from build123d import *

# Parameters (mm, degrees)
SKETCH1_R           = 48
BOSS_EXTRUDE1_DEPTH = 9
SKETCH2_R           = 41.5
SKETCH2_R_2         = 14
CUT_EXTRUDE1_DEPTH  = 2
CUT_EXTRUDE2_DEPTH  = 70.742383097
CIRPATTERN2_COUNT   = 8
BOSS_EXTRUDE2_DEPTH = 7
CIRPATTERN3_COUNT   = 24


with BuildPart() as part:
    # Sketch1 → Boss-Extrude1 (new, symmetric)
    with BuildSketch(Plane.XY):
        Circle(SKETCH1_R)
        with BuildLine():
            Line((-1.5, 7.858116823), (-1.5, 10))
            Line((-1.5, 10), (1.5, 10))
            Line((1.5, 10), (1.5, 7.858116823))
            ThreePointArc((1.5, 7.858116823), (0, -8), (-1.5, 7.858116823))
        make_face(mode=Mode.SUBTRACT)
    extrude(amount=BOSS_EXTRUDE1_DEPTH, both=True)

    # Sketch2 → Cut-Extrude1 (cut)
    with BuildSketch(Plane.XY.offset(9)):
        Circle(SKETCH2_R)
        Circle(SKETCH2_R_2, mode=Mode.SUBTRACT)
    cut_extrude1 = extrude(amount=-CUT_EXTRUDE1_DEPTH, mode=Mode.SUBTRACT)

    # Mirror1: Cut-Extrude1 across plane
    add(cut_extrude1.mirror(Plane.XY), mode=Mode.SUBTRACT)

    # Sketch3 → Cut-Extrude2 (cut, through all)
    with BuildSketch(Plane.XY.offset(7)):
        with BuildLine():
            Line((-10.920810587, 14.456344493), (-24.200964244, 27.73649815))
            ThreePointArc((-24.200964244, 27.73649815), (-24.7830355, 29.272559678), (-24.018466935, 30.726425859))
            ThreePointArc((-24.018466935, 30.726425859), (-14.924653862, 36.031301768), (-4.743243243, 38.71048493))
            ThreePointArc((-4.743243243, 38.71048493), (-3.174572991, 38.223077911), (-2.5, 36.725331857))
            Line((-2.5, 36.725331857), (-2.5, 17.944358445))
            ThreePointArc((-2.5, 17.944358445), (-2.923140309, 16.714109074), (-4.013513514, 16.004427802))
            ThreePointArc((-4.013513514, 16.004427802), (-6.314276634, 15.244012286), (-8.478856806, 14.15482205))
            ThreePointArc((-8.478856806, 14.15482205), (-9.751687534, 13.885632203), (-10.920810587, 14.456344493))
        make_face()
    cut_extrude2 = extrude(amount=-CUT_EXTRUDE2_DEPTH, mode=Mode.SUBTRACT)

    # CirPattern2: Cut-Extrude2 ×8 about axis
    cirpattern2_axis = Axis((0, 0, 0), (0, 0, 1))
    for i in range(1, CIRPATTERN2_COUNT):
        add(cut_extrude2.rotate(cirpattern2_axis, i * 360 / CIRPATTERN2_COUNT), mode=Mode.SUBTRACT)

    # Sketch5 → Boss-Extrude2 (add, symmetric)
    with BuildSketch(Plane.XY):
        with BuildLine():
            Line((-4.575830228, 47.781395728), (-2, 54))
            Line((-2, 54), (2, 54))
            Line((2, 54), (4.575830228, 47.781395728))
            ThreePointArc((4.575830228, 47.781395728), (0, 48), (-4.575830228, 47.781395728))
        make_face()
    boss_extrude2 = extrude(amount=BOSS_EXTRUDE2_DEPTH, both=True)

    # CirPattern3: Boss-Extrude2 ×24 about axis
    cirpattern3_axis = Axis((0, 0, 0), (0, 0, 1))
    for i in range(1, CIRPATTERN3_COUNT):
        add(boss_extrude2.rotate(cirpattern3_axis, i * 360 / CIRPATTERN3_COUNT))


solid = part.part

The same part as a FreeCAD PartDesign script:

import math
import FreeCAD as App
import Part
import Sketcher
from FreeCAD import Vector
Q = App.Units.Quantity

doc = App.newDocument("Part")
body = doc.addObject("PartDesign::Body", "Body")

sketch1 = doc.addObject("Sketcher::SketchObject", "Sketch")
body.addObject(sketch1)
sketch1.AttachmentSupport = (doc.XY_Plane, [""])
sketch1.MapMode = "FlatFace"
sketch1.addGeometry([
    Part.Circle(Vector(0, 0, 0), Vector(0, 0, 1), 48),
    Part.ArcOfCircle(Part.Circle(Vector(0, 0, 0), Vector(0, 0, 1), 8), math.radians(100.806923), math.radians(439.193077)),
    Part.LineSegment(Vector(-1.5, 7.858117, 0), Vector(-1.5, 10, 0)),
    Part.LineSegment(Vector(-1.5, 10, 0), Vector(1.5, 10, 0)),
    Part.LineSegment(Vector(1.5, 10, 0), Vector(1.5, 7.858117, 0)),
], False)
sketch1.addConstraint([
    Sketcher.Constraint("Coincident", 1, 1, 2, 1),
    Sketcher.Constraint("Coincident", 2, 2, 3, 1),
    Sketcher.Constraint("Coincident", 3, 2, 4, 1),
    Sketcher.Constraint("Coincident", 4, 2, 1, 2),
    Sketcher.Constraint("Vertical", 2),
    Sketcher.Constraint("Horizontal", 3),
    Sketcher.Constraint("Vertical", 4),
    Sketcher.Constraint("Coincident", 0, 3, -1, 1),
    Sketcher.Constraint("Coincident", 1, 3, -1, 1),
    Sketcher.Constraint("Horizontal", 1, 1, 4, 2),
    Sketcher.Constraint("Diameter", 0, 96.0),
    Sketcher.Constraint("Radius", 1, 8.0),
    Sketcher.Constraint("DistanceX", 3, 1, 3, 2, 3.0),
    Sketcher.Constraint("DistanceY", -1, 1, 2, 2, 10.0),
])
pad1 = doc.addObject("PartDesign::Pad", "Pad")
body.addObject(pad1)
pad1.Profile = sketch1
pad1.Length = 18
pad1.Midplane = True

sketch2 = doc.addObject("Sketcher::SketchObject", "Sketch001")
body.addObject(sketch2)
sketch2.AttachmentSupport = (doc.XY_Plane, [""])
sketch2.MapMode = "FlatFace"
sketch2.AttachmentOffset = App.Placement(Vector(0, 0, 9), App.Rotation())
sketch2.addGeometry([
    Part.Circle(Vector(0, 0, 0), Vector(0, 0, 1), 41.5),
    Part.Circle(Vector(0, 0, 0), Vector(0, 0, 1), 14),
], False)
sketch2.addConstraint([
    Sketcher.Constraint("Coincident", 0, 3, -1, 1),
    Sketcher.Constraint("Coincident", 1, 3, -1, 1),
    Sketcher.Constraint("Diameter", 0, 83.0),
    Sketcher.Constraint("Diameter", 1, 28.0),
])
pocket1 = doc.addObject("PartDesign::Pocket", "Pocket")
body.addObject(pocket1)
pocket1.Profile = sketch2
pocket1.Length = 2
doc.recompute()

mirrored = doc.addObject("PartDesign::Mirrored", "Mirrored")
body.addObject(mirrored)
mirrored.Originals = [pocket1]
mirrored.MirrorPlane = (doc.XY_Plane, [""])
body.Tip = mirrored

sketch3 = doc.addObject("Sketcher::SketchObject", "Sketch002")
body.addObject(sketch3)
sketch3.AttachmentSupport = (doc.XY_Plane, [""])
sketch3.MapMode = "FlatFace"
sketch3.AttachmentOffset = App.Placement(Vector(0, 0, 7), App.Rotation())
sketch3.addGeometry([
    Part.LineSegment(Vector(-24.200964, 27.736498, 0), Vector(-10.920811, 14.456344, 0)),
    Part.ArcOfCircle(Part.Circle(Vector(-9.506597, 15.870558, 0), Vector(0, 0, 1), 2), math.radians(-135), math.radians(-59.078039)),
    Part.ArcOfCircle(Part.Circle(Vector(0, 0, 0), Vector(0, 0, 1), 16.5), math.radians(104.078039), math.radians(120.921961)),
    Part.ArcOfCircle(Part.Circle(Vector(-4.5, 17.944358, 0), Vector(0, 0, 1), 2), math.radians(-75.921961), math.radians(0)),
    Part.LineSegment(Vector(-2.5, 17.944358, 0), Vector(-2.5, 36.725332, 0)),
    Part.ArcOfCircle(Part.Circle(Vector(-4.5, 36.725332, 0), Vector(0, 0, 1), 2), math.radians(0), math.radians(96.9857)),
    Part.ArcOfCircle(Part.Circle(Vector(0, 0, 0), Vector(0, 0, 1), 39), math.radians(96.9857), math.radians(128.0143)),
    Part.ArcOfCircle(Part.Circle(Vector(-22.786751, 29.150712, 0), Vector(0, 0, 1), 2), math.radians(128.0143), math.radians(225)),
], False)
sketch3.addConstraint([
    Sketcher.Constraint("Tangent", 0, 2, 1, 1),
    Sketcher.Constraint("Tangent", 1, 2, 2, 2),
    Sketcher.Constraint("Tangent", 2, 1, 3, 1),
    Sketcher.Constraint("Tangent", 3, 2, 4, 1),
    Sketcher.Constraint("Tangent", 4, 2, 5, 1),
    Sketcher.Constraint("Tangent", 5, 2, 6, 1),
    Sketcher.Constraint("Tangent", 6, 2, 7, 1),
    Sketcher.Constraint("Tangent", 7, 2, 0, 1),
    Sketcher.Constraint("Vertical", 4),
    Sketcher.Constraint("Coincident", 2, 3, -1, 1),
    Sketcher.Constraint("Coincident", 6, 3, -1, 1),
    Sketcher.Constraint("Equal", 1, 3),
    Sketcher.Constraint("Equal", 3, 5),
    Sketcher.Constraint("Equal", 5, 7),
    Sketcher.Constraint("Radius", 1, 2.0),
    Sketcher.Constraint("Radius", 6, 39.0),
    Sketcher.Constraint("Radius", 2, 16.5),
    Sketcher.Constraint("Angle", 0, Q("-45 deg")),
    Sketcher.Constraint("DistanceX", 3, 3, -1, 1, 4.5),
    Sketcher.Constraint("DistanceY", -1, 1, 7, 2, 27.736498),
])
pocket2 = doc.addObject("PartDesign::Pocket", "Pocket001")
body.addObject(pocket2)
pocket2.Profile = sketch3
pocket2.Type = "ThroughAll"
doc.recompute()

polarpattern = doc.addObject("PartDesign::PolarPattern", "PolarPattern")
body.addObject(polarpattern)
polarpattern.Originals = [pocket2]
polarpattern.Axis = (doc.Z_Axis, [""])
polarpattern.Angle = 360
polarpattern.Occurrences = 8
body.Tip = polarpattern

sketch4 = doc.addObject("Sketcher::SketchObject", "Sketch003")
body.addObject(sketch4)
sketch4.AttachmentSupport = (doc.XY_Plane, [""])
sketch4.MapMode = "FlatFace"
sketch4.addGeometry([
    Part.LineSegment(Vector(-2, 54, 0), Vector(-4.57583, 47.781396, 0)),
    Part.ArcOfCircle(Part.Circle(Vector(0, 0, 0), Vector(0, 0, 1), 48), math.radians(84.529698), math.radians(95.470302)),
    Part.LineSegment(Vector(4.57583, 47.781396, 0), Vector(2, 54, 0)),
    Part.LineSegment(Vector(2, 54, 0), Vector(-2, 54, 0)),
], False)
sketch4.addConstraint([
    Sketcher.Constraint("Coincident", 0, 2, 1, 2),
    Sketcher.Constraint("Coincident", 1, 1, 2, 1),
    Sketcher.Constraint("Coincident", 2, 2, 3, 1),
    Sketcher.Constraint("Coincident", 3, 2, 0, 1),
    Sketcher.Constraint("Horizontal", 3),
    Sketcher.Constraint("Coincident", 1, 3, -1, 1),
    Sketcher.Constraint("Horizontal", 0, 2, 1, 1),
    Sketcher.Constraint("Equal", 0, 2),
    Sketcher.Constraint("Radius", 1, 48.0),
    Sketcher.Constraint("DistanceX", 3, 2, 3, 1, 4.0),
    Sketcher.Constraint("DistanceY", -1, 1, 2, 2, 54.0),
    Sketcher.Constraint("Angle", 0, Q("-112.5 deg")),
])
pad2 = doc.addObject("PartDesign::Pad", "Pad001")
body.addObject(pad2)
pad2.Profile = sketch4
pad2.Length = 14
pad2.Midplane = True
doc.recompute()

polarpattern2 = doc.addObject("PartDesign::PolarPattern", "PolarPattern001")
body.addObject(polarpattern2)
polarpattern2.Originals = [pad2]
polarpattern2.Axis = (doc.Z_Axis, [""])
polarpattern2.Angle = 360
polarpattern2.Occurrences = 24
body.Tip = polarpattern2

doc.recompute()
